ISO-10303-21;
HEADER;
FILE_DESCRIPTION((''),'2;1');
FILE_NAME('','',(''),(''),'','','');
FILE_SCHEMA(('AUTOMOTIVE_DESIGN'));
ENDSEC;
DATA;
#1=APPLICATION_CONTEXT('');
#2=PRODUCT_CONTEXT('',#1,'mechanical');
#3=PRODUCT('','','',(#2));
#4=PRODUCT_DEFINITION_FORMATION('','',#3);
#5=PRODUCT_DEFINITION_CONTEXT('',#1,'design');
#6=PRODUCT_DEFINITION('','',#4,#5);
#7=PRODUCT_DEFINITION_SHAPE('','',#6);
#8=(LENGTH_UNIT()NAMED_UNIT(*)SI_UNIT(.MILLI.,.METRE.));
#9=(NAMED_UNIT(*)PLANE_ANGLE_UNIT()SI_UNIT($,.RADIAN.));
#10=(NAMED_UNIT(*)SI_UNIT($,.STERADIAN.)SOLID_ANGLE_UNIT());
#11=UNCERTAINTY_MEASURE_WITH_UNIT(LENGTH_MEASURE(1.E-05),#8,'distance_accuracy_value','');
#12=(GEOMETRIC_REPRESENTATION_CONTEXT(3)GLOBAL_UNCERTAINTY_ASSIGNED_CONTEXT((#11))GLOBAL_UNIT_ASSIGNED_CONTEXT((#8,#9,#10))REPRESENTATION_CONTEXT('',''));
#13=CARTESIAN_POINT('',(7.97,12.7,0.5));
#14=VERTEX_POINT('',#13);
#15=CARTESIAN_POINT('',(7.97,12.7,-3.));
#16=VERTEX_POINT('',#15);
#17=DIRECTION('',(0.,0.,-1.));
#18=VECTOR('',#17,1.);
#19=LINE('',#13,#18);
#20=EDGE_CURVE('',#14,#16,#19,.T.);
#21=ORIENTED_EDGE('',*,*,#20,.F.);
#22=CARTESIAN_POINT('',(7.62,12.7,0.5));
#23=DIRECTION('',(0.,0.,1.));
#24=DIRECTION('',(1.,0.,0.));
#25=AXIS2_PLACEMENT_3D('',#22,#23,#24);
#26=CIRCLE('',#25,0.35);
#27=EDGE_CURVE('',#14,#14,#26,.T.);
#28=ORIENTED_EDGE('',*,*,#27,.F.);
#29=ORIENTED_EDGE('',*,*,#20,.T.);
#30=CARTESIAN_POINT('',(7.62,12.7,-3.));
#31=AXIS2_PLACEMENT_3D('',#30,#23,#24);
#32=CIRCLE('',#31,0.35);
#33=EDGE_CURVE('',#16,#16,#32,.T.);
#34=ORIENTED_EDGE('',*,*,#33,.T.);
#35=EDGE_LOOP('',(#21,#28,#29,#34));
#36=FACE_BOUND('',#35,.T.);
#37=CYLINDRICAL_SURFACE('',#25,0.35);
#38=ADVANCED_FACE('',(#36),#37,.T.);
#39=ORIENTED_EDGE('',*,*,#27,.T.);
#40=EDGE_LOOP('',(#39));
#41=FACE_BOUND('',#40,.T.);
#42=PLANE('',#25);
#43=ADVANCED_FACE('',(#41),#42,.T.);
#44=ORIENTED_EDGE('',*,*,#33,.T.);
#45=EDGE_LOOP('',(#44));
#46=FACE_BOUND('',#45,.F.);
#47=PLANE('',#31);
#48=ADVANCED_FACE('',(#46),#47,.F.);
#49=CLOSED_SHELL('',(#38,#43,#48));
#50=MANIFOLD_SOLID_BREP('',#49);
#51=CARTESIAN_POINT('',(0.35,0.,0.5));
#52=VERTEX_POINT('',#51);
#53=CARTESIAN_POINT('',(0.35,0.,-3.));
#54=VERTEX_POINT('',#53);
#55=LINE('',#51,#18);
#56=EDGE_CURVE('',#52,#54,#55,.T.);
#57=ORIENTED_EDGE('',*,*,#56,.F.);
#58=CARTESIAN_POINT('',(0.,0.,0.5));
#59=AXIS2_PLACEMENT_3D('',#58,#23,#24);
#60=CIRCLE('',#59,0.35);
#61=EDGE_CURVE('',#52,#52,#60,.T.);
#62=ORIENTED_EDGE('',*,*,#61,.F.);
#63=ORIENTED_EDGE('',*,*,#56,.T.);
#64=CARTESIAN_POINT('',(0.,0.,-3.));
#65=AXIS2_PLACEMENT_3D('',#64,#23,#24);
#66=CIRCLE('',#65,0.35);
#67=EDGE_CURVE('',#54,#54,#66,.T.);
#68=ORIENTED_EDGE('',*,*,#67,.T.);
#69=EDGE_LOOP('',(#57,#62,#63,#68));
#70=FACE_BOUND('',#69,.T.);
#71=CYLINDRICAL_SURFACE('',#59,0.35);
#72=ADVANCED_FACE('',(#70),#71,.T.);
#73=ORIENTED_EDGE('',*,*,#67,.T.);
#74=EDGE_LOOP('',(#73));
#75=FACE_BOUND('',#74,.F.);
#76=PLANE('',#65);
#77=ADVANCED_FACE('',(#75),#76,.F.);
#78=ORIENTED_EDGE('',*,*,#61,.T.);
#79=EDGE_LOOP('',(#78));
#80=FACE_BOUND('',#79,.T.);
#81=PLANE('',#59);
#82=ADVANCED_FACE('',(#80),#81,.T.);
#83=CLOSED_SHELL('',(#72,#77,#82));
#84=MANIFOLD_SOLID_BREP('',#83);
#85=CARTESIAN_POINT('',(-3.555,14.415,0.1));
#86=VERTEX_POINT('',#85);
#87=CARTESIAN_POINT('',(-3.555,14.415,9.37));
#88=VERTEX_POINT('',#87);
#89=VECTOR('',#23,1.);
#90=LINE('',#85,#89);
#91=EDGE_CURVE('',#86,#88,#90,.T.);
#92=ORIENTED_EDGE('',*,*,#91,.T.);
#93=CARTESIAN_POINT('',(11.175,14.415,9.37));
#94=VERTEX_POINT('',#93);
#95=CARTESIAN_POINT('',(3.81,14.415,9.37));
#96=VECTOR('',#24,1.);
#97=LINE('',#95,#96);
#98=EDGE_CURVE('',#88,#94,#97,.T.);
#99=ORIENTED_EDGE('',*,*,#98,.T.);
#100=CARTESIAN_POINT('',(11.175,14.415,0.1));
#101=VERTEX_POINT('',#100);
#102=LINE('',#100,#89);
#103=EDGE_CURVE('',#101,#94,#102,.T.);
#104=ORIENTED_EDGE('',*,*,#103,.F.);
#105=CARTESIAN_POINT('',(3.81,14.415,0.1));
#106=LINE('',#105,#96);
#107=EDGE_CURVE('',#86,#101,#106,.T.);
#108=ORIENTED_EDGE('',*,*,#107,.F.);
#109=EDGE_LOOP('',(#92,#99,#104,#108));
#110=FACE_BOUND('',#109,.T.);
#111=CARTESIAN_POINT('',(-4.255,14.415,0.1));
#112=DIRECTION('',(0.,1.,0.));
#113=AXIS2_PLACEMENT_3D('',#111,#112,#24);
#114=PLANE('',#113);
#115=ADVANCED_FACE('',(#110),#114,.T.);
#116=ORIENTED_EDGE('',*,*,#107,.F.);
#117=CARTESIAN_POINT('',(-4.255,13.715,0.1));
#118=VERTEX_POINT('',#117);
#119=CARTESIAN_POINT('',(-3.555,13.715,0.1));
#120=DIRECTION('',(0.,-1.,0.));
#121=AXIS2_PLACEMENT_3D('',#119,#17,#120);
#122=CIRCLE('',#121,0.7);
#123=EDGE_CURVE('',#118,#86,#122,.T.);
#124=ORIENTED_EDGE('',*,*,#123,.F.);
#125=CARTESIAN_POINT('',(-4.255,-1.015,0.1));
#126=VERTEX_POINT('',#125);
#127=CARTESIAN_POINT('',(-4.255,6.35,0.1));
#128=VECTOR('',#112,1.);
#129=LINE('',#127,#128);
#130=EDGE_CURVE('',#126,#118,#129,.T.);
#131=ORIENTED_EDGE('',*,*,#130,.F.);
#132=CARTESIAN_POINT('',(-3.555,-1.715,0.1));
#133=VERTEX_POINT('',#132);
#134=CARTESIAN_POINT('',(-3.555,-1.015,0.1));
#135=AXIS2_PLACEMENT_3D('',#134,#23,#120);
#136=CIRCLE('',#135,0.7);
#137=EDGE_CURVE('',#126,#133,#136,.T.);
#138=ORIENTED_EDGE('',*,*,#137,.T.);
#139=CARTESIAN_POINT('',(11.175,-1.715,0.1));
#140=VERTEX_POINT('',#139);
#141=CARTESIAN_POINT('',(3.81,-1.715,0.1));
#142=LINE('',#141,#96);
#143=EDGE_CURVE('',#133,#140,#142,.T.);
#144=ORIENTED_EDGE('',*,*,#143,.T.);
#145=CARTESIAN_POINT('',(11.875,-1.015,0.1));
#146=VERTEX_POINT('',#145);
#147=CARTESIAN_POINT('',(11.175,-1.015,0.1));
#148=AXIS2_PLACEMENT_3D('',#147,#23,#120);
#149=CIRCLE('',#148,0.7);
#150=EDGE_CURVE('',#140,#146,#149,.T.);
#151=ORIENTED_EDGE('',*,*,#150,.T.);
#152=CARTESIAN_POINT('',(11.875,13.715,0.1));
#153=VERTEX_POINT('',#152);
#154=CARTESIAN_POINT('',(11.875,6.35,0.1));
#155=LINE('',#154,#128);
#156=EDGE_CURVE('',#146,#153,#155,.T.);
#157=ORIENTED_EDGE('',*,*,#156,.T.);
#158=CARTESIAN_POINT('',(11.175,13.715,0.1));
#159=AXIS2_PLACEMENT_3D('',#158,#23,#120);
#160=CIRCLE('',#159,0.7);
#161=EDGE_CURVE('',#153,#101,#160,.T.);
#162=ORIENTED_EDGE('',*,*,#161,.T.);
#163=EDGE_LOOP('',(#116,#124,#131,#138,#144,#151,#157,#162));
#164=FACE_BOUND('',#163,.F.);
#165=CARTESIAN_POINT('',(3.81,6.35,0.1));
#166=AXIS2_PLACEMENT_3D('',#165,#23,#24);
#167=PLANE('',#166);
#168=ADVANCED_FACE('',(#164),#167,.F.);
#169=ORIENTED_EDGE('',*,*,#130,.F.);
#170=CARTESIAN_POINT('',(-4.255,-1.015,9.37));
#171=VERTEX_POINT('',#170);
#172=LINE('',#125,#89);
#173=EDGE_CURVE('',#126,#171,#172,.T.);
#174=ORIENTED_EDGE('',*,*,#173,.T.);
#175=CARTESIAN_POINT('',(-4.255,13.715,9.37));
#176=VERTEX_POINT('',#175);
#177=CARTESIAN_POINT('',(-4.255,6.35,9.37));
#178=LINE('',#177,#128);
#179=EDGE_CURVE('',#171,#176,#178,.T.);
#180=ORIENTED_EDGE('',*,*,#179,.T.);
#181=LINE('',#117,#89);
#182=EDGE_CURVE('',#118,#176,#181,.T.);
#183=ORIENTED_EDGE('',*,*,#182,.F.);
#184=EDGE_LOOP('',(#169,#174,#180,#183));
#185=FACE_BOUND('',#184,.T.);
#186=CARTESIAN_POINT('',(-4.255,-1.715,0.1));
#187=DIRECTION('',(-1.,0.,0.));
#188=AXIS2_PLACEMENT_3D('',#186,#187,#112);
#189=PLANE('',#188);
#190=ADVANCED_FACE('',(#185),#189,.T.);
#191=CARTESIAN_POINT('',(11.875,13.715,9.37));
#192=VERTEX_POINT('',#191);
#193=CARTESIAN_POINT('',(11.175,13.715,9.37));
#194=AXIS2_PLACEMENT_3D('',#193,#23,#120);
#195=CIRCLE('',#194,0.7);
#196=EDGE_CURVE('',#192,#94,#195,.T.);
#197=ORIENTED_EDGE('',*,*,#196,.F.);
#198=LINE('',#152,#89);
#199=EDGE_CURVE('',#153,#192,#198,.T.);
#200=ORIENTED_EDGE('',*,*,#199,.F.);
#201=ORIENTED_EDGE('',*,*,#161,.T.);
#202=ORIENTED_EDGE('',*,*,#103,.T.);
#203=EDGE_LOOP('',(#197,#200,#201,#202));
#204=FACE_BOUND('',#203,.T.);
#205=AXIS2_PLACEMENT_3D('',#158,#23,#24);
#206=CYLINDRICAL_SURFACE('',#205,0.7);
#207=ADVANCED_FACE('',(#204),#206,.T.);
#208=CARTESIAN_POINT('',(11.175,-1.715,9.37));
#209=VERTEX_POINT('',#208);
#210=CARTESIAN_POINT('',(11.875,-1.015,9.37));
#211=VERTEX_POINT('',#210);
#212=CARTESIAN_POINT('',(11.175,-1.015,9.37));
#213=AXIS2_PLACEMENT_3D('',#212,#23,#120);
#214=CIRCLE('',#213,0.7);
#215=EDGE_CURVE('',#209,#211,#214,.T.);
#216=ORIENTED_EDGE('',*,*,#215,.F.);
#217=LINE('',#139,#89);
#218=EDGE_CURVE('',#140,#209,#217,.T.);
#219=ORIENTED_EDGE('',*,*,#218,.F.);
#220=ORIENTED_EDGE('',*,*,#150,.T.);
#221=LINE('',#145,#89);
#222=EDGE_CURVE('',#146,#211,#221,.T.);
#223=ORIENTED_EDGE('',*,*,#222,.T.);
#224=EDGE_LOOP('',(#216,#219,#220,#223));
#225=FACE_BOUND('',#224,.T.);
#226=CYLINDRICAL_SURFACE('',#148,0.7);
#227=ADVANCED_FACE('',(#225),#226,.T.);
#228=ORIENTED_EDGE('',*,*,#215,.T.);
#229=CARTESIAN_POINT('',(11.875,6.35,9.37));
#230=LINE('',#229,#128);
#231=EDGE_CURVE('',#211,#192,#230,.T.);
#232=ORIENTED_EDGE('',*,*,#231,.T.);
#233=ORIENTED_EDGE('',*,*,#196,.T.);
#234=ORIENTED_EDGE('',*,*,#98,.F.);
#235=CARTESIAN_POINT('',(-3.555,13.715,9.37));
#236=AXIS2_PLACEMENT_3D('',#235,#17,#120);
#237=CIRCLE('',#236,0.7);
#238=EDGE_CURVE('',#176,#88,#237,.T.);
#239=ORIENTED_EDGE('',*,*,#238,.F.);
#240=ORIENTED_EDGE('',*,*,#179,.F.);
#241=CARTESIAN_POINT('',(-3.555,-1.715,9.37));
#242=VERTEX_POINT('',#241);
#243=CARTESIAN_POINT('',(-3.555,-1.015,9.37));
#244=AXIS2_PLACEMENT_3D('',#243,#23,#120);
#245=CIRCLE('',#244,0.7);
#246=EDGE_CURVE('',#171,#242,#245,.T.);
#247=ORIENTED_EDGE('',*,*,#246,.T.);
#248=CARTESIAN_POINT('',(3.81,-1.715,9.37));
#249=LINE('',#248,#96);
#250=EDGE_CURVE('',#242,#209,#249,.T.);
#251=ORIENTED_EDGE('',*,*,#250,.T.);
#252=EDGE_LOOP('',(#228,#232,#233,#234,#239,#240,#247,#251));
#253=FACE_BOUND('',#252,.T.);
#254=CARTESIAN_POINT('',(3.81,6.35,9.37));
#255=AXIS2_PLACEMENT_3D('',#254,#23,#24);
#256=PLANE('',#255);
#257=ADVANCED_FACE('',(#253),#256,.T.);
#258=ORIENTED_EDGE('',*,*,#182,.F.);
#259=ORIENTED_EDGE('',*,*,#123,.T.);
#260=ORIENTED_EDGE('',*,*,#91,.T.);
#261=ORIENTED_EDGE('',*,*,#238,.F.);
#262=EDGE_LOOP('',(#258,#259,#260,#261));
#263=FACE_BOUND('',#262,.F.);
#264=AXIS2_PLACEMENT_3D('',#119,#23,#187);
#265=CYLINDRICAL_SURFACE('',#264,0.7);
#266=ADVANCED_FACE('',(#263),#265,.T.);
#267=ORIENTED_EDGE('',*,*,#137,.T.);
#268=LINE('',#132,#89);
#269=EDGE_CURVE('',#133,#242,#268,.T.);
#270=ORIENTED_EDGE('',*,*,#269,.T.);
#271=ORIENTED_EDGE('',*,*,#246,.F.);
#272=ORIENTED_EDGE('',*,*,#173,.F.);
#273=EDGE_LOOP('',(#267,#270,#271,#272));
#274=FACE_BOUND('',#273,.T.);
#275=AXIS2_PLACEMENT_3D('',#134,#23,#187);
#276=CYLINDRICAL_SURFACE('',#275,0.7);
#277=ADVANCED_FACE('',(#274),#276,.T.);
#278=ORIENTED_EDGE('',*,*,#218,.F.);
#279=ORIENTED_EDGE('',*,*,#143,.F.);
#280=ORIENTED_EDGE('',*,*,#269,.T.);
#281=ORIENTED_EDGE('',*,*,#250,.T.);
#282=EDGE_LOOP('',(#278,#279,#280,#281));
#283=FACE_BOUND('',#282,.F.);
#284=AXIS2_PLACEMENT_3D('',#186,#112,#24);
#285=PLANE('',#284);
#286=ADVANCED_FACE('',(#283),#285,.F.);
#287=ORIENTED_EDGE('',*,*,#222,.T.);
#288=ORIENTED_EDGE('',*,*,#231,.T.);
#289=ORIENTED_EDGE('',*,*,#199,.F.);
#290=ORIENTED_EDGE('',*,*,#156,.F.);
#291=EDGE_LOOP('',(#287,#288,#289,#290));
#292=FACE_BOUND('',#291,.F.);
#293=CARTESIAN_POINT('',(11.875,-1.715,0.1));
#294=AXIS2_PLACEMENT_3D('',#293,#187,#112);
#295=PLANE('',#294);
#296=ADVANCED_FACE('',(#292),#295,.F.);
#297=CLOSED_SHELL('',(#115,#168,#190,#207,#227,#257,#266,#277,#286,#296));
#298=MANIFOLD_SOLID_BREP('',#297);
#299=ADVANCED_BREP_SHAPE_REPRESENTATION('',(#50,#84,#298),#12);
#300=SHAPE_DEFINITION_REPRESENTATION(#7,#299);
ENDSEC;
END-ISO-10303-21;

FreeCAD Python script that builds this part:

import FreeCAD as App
import Part
import Sketcher
Q = App.Units.Quantity


def edges_at(feature, points):
    """Names of the edges that pass closest to the given points."""
    edges = feature.Shape.Edges
    near = lambda p: min(range(len(edges)), key=lambda i: edges[i].distToShape(Part.Vertex(*p))[0])
    return sorted({f"Edge{near(p) + 1}" for p in points})

doc = App.newDocument("Part")
params = doc.addObject("Spreadsheet::Sheet", "Params")
for row, (alias, value) in enumerate([
    ("sketch1_diameter", "0.7 mm"),
    ("pad1_length", "3.5 mm"),
    ("sketch2_width", "16.13 mm"),
    ("pad2_length", "9.27 mm"),
    ("fillet_radius", "0.7 mm"),
], start=1):
    params.set(f"A{row}", alias)
    params.set(f"B{row}", "=" + value)
    params.setAlias(f"B{row}", alias)

body = doc.addObject("PartDesign::Body", "Body")
body.AllowCompound = True

# Sketch on XY plane
sketch1 = body.newObject("Sketcher::SketchObject", "Sketch")
sketch1.AttachmentSupport = (doc.getObject("XY_Plane"), [""])
sketch1.MapMode = "FlatFace"
sketch1.AttachmentOffset = App.Placement(App.Vector(0, 0, 0.5), App.Rotation())
sketch1.addGeometry([
    Part.Circle(App.Vector(0, 0, 0), App.Vector(0, 0, 1), 0.35),
    Part.Circle(App.Vector(7.62, 12.7, 0), App.Vector(0, 0, 1), 0.35),
], False)
sketch1.addConstraint([
    Sketcher.Constraint("Coincident", 0, 3, -1, 1),
    Sketcher.Constraint("Equal", 0, 1),
    Sketcher.Constraint("Diameter", 0, Q("0.7 mm")),
    Sketcher.Constraint("DistanceY", -1, 1, 1, 3, Q("12.7 mm")),
    Sketcher.Constraint("DistanceX", -1, 1, 1, 3, Q("7.62 mm")),
])
sketch1.setExpression("Constraints[2]", "Params.sketch1_diameter")
pad1 = body.newObject("PartDesign::Pad", "Pad")
pad1.Profile = sketch1
pad1.setExpression("Length", "Params.pad1_length")
pad1.Reversed = True
body2 = doc.addObject("PartDesign::Body", "Body001")

# Sketch on XY plane
sketch2 = body2.newObject("Sketcher::SketchObject", "Sketch001")
sketch2.AttachmentSupport = (doc.getObject("XY_Plane001"), [""])
sketch2.MapMode = "FlatFace"
sketch2.AttachmentOffset = App.Placement(App.Vector(0, 0, 0.1), App.Rotation())
sketch2.addGeometry([
    Part.LineSegment(App.Vector(-4, 14, 0), App.Vector(-4, -2, 0)),
    Part.LineSegment(App.Vector(-4, -2, 0), App.Vector(12, -2, 0)),
    Part.LineSegment(App.Vector(12, -2, 0), App.Vector(12, 14, 0)),
    Part.LineSegment(App.Vector(12, 14, 0), App.Vector(-4, 14, 0)),
], False)
sketch2.addConstraint([
    Sketcher.Constraint("Coincident", 0, 2, 1, 1),
    Sketcher.Constraint("Coincident", 1, 2, 2, 1),
    Sketcher.Constraint("Coincident", 2, 2, 3, 1),
    Sketcher.Constraint("Coincident", 3, 2, 0, 1),
    Sketcher.Constraint("Vertical", 0),
    Sketcher.Constraint("Horizontal", 1),
    Sketcher.Constraint("Vertical", 2),
    Sketcher.Constraint("Horizontal", 3),
    Sketcher.Constraint("Equal", 3, 0),
    Sketcher.Constraint("DistanceX", 1, 1, 1, 2, Q("16.13 mm")),
    Sketcher.Constraint("DistanceX", 0, 2, -1, 1, Q("4.255 mm")),
    Sketcher.Constraint("DistanceY", 0, 2, -1, 1, Q("1.715 mm")),
])
sketch2.setExpression("Constraints[9]", "Params.sketch2_width")
pad2 = body2.newObject("PartDesign::Pad", "Pad001")
pad2.Profile = sketch2
pad2.setExpression("Length", "Params.pad2_length")
doc.recompute()

fillet = body2.newObject("PartDesign::Fillet", "Fillet")
fillet.Base = (pad2, edges_at(pad2, [
    (11.875, -1.715, 4.735),
    (11.875, 14.415, 4.735),
    (-4.255, -1.715, 4.735),
    (-4.255, 14.415, 4.735),
]))
fillet.setExpression("Radius", "Params.fillet_radius")

doc.recompute()
